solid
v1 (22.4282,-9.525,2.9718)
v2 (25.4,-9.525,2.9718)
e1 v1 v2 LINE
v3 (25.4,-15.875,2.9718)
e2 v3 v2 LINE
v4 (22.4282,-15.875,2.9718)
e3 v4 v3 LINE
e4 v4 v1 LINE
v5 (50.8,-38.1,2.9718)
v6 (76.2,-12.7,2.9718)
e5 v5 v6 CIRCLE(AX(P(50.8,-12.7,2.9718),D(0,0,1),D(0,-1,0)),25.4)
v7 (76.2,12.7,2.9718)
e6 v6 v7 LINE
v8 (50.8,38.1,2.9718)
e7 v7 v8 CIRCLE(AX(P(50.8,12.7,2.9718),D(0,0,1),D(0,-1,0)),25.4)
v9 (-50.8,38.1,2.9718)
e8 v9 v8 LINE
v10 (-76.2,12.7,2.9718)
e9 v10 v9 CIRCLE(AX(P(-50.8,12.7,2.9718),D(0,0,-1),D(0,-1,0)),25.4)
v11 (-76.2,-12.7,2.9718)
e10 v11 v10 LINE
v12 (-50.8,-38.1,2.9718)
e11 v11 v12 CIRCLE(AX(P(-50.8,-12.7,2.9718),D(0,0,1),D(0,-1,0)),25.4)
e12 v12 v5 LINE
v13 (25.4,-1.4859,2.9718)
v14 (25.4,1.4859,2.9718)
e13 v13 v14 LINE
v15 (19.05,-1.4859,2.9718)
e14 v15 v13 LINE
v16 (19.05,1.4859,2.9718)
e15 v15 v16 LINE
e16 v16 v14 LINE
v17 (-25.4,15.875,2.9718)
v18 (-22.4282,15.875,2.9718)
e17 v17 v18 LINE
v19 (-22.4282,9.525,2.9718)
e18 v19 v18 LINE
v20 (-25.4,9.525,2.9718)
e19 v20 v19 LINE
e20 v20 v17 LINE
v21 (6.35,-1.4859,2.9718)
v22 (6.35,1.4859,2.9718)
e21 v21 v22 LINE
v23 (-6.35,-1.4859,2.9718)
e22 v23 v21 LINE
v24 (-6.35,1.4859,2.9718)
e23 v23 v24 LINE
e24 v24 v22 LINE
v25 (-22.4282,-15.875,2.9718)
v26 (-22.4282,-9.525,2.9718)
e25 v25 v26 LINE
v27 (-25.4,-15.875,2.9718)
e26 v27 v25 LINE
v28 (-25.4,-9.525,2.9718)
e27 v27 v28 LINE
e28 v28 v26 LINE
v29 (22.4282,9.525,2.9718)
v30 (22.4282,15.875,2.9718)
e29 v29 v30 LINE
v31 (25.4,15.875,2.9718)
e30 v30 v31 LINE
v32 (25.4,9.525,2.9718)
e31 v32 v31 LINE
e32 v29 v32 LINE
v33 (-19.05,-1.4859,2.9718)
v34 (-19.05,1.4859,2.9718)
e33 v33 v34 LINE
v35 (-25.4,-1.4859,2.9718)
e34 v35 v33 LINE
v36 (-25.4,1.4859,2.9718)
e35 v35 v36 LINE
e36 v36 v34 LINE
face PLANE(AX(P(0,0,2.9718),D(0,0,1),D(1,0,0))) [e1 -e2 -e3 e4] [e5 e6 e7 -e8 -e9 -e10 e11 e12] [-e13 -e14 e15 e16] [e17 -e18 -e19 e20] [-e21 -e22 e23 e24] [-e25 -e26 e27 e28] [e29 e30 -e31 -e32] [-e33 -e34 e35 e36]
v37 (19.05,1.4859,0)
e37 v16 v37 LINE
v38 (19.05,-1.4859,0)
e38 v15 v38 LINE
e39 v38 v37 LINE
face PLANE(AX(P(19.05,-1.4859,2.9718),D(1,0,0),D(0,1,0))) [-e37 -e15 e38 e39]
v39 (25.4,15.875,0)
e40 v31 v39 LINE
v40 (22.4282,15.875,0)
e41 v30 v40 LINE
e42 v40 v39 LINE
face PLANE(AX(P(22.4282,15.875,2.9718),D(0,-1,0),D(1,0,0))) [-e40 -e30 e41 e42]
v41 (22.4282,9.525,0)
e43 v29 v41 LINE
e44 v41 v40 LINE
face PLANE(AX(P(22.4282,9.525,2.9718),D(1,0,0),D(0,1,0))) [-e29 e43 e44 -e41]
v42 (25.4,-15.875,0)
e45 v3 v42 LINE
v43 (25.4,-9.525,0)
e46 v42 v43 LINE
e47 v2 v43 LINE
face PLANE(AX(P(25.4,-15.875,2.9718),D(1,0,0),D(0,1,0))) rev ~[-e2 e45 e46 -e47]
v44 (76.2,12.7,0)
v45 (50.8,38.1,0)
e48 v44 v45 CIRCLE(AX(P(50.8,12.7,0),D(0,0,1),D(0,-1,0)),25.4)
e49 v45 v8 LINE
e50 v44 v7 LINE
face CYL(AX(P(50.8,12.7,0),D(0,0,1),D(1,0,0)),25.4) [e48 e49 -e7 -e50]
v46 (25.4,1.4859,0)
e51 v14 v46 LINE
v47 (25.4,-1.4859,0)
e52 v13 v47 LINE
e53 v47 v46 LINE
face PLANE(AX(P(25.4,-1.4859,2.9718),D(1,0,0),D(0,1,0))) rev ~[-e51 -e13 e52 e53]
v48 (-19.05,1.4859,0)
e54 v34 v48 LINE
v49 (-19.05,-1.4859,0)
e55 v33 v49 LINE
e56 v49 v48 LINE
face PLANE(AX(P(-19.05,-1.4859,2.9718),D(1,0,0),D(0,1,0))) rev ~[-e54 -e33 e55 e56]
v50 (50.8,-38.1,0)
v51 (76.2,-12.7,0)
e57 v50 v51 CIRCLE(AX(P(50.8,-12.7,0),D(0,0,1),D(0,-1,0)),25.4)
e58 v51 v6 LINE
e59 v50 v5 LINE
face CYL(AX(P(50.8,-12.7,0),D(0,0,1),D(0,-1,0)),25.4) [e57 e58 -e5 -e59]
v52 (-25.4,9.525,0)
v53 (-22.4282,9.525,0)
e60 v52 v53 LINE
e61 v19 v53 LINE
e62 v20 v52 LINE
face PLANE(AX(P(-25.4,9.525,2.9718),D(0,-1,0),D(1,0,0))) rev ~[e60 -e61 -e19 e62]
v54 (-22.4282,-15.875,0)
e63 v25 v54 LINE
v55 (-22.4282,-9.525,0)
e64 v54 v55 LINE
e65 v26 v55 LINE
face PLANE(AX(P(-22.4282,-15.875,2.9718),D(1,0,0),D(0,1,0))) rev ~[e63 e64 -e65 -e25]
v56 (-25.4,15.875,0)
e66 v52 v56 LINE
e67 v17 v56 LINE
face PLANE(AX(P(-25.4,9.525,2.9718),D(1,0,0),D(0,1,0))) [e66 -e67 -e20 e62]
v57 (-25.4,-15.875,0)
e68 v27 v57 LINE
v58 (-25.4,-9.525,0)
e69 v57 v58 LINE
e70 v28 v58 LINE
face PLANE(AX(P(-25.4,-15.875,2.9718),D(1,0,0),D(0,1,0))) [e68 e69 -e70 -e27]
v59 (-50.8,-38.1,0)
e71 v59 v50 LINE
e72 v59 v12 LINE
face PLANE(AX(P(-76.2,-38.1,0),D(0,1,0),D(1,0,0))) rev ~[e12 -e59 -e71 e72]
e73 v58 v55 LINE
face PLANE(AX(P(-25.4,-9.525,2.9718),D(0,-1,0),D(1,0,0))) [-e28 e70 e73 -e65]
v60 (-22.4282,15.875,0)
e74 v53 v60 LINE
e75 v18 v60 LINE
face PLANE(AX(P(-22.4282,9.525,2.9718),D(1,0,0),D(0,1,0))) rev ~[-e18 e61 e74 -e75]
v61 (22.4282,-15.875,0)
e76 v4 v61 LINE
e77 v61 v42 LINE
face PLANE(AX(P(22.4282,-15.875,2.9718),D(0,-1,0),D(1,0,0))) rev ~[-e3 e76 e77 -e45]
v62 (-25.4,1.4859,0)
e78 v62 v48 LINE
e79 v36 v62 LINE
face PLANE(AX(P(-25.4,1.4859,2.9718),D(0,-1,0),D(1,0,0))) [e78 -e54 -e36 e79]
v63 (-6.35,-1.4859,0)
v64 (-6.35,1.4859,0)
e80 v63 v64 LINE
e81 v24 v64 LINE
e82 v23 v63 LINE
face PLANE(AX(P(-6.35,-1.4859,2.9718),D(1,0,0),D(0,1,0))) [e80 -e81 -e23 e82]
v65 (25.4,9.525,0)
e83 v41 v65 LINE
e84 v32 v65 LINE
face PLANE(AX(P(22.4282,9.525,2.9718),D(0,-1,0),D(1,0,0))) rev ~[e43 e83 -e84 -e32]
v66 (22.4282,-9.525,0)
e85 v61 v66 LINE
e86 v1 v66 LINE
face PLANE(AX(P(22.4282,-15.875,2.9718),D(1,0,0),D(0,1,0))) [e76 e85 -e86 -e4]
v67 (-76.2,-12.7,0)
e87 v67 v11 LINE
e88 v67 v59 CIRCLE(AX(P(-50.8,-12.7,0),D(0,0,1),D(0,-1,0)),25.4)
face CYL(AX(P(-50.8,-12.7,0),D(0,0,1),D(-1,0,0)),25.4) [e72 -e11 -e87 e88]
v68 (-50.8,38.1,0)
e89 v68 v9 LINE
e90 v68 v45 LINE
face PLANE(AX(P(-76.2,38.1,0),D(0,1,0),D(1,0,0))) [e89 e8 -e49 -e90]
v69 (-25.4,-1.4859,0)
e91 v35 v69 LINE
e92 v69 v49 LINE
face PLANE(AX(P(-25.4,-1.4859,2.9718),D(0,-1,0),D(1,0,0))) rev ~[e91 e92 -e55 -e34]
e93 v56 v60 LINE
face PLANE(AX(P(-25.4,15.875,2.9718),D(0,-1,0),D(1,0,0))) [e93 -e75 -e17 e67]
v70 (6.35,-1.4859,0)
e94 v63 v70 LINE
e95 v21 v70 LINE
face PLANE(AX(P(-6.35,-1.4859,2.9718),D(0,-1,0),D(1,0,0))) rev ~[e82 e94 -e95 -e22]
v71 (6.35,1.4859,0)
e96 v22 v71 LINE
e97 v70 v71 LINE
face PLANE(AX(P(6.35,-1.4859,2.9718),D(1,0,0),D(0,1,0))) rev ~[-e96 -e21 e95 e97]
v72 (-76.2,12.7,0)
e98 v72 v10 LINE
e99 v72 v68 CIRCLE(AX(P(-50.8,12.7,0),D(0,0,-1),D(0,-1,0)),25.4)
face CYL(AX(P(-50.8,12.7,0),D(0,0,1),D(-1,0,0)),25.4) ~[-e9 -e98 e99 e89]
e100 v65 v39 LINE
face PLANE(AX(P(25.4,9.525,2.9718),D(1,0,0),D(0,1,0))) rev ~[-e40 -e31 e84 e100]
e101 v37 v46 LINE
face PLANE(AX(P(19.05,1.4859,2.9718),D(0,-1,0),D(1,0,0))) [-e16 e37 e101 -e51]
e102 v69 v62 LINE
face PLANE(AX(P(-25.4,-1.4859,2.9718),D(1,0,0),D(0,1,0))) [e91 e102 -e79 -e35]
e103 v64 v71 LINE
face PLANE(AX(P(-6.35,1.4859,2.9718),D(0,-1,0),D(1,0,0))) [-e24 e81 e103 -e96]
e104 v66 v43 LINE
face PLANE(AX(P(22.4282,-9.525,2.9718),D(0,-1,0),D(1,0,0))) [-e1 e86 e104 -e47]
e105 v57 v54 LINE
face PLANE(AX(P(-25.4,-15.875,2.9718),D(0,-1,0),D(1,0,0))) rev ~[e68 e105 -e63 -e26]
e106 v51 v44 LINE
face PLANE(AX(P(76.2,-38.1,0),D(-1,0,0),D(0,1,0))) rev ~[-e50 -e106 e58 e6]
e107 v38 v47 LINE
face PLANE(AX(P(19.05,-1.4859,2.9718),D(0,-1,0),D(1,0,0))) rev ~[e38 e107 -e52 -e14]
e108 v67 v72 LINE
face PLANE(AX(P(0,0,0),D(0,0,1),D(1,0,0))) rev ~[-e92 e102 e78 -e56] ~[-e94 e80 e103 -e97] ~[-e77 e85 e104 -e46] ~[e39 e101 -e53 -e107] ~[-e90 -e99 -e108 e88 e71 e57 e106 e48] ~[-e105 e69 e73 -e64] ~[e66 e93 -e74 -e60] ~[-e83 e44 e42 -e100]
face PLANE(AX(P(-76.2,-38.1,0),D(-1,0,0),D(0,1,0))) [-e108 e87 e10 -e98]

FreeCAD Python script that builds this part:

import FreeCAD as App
import Part
import Sketcher
from FreeCAD import Vector
Q = App.Units.Quantity


def edges_at(feature, points):
    """Names of the edges that pass closest to the given points."""
    edges = feature.Shape.Edges
    near = lambda p: min(range(len(edges)), key=lambda i: edges[i].distToShape(Part.Vertex(*p))[0])
    return sorted({f"Edge{near(p) + 1}" for p in points})


def add_polygon(sketch, points):
    """Adds a closed chain of lines whose ends are joined by coincident constraints."""
    first, n = sketch.GeometryCount, len(points)
    for a, b in zip(points, points[1:] + points[:1]):
        sketch.addGeometry(Part.LineSegment(App.Vector(*a, 0), App.Vector(*b, 0)), False)
    for i in range(n):
        sketch.addConstraint(Sketcher.Constraint("Coincident", first + i, 2, first + (i + 1) % n, 1))

doc = App.newDocument("Part")
params = doc.addObject("Spreadsheet::Sheet", "Params")
for row, (alias, value) in enumerate([
    ("sketch1_width", "6 in"),
    ("sketch1_height", "3 in"),
    ("pad1_length", "0.117 in"),
    ("fillet_radius", "1 in"),
    ("sketch2_width", "0.5 in"),
    ("sketch2_height", "0.117 in"),
    ("pocket1_length", "1 in"),
    ("sketch3_height", "0.25 in"),
    ("sketch3_width", "0.117 in"),
    ("pocket2_length", "1 in"),
], start=1):
    params.set(f"A{row}", alias)
    params.set(f"B{row}", "=" + value)
    params.setAlias(f"B{row}", alias)

body = doc.addObject("PartDesign::Body", "Body")

# Sketch on XY plane
sketch1 = body.newObject("Sketcher::SketchObject", "Sketch")
sketch1.AttachmentSupport = (doc.getObject("XY_Plane"), [""])
sketch1.MapMode = "FlatFace"
add_polygon(sketch1, [(-76, 38), (-76, -38), (76, -38), (76, 38)])  # lines 0-3
sketch1.addConstraint([
    Sketcher.Constraint("Vertical", 0),
    Sketcher.Constraint("Horizontal", 1),
    Sketcher.Constraint("Vertical", 2),
    Sketcher.Constraint("Horizontal", 3),
    Sketcher.Constraint("Symmetric", 0, 2, 2, 2, -1, 1),
    Sketcher.Constraint("DistanceX", 1, 1, 1, 2, Q("6 in")),
    Sketcher.Constraint("DistanceY", 0, 2, 0, 1, Q("3 in")),
])
sketch1.setExpression("Constraints[9]", "Params.sketch1_width")
sketch1.setExpression("Constraints[10]", "Params.sketch1_height")
pad1 = body.newObject("PartDesign::Pad", "Pad")
pad1.Profile = sketch1
pad1.setExpression("Length", "Params.pad1_length")
doc.recompute()

fillet = body.newObject("PartDesign::Fillet", "Fillet")
fillet.Base = (pad1, edges_at(pad1, [
    (-76.2, -38.1, 1.486),
    (76.2, -38.1, 1.486),
    (76.2, 38.1, 1.486),
    (-76.2, 38.1, 1.486),
]))
fillet.setExpression("Radius", "Params.fillet_radius")

# Sketch on XY plane
sketch2 = body.newObject("Sketcher::SketchObject", "Sketch001")
sketch2.AttachmentSupport = (doc.getObject("XY_Plane"), [""])
sketch2.MapMode = "FlatFace"
sketch2.AttachmentOffset = App.Placement(Vector(0, 0, 0.117 * 25.4), App.Rotation())
add_polygon(sketch2, [(-6.3, 1.5), (-6.3, -1.5), (6.3, -1.5), (6.3, 1.5)])  # lines 0-3
add_polygon(sketch2, [(19.1, 1.5), (19.1, -1.5), (25.4, -1.5), (25.4, 1.5)])  # lines 4-7
add_polygon(sketch2, [(-25.4, 1.5), (-25.4, -1.5), (-19.1, -1.5), (-19.1, 1.5)])  # lines 8-11
sketch2.addConstraint([
    Sketcher.Constraint("Vertical", 0),
    Sketcher.Constraint("Horizontal", 1),
    Sketcher.Constraint("Vertical", 2),
    Sketcher.Constraint("Horizontal", 3),
    Sketcher.Constraint("Vertical", 4),
    Sketcher.Constraint("Horizontal", 5),
    Sketcher.Constraint("Vertical", 6),
    Sketcher.Constraint("Horizontal", 7),
    Sketcher.Constraint("Vertical", 8),
    Sketcher.Constraint("Horizontal", 9),
    Sketcher.Constraint("Vertical", 10),
    Sketcher.Constraint("Horizontal", 11),
    Sketcher.Constraint("Symmetric", 0, 2, 2, 2, -1, 1),
    Sketcher.Constraint("Symmetric", 6, 2, 8, 2, -1, 1),
    Sketcher.Constraint("Symmetric", 4, 2, 10, 2, -1, 1),
    Sketcher.Constraint("Horizontal", 1, 2, 4, 2),
    Sketcher.Constraint("Horizontal", 3, 2, 6, 2),
    Sketcher.Constraint("DistanceX", 1, 1, 1, 2, Q("0.5 in")),
    Sketcher.Constraint("DistanceX", -1, 1, 5, 2, Q("1 in")),
    Sketcher.Constraint("DistanceX", 0, 2, 4, 2, Q("1 in")),
    Sketcher.Constraint("DistanceY", 0, 2, 0, 1, Q("0.117 in")),
])
sketch2.setExpression("Constraints[29]", "Params.sketch2_width")
sketch2.setExpression("Constraints[32]", "Params.sketch2_height")
pocket1 = body.newObject("PartDesign::Pocket", "Pocket")
pocket1.Profile = sketch2
pocket1.setExpression("Length", "Params.pocket1_length")

# Sketch on XY plane
sketch3 = body.newObject("Sketcher::SketchObject", "Sketch002")
sketch3.AttachmentSupport = (doc.getObject("XY_Plane"), [""])
sketch3.MapMode = "FlatFace"
sketch3.AttachmentOffset = App.Placement(Vector(0, 0, 0.117 * 25.4), App.Rotation())
add_polygon(sketch3, [(22.4, 15.9), (22.4, 9.5), (25.4, 9.5), (25.4, 15.9)])  # lines 0-3
add_polygon(sketch3, [(22.4, -9.5), (22.4, -15.9), (25.4, -15.9), (25.4, -9.5)])  # lines 4-7
add_polygon(sketch3, [(-25.4, 15.9), (-25.4, 9.5), (-22.4, 9.5), (-22.4, 15.9)])  # lines 8-11
add_polygon(sketch3, [(-25.4, -9.5), (-25.4, -15.9), (-22.4, -15.9), (-22.4, -9.5)])  # lines 12-15
sketch3.addConstraint([
    Sketcher.Constraint("Vertical", 0),
    Sketcher.Constraint("Horizontal", 1),
    Sketcher.Constraint("Vertical", 2),
    Sketcher.Constraint("Horizontal", 3),
    Sketcher.Constraint("Vertical", 4),
    Sketcher.Constraint("Horizontal", 5),
    Sketcher.Constraint("Vertical", 6),
    Sketcher.Constraint("Horizontal", 7),
    Sketcher.Constraint("Vertical", 8),
    Sketcher.Constraint("Horizontal", 9),
    Sketcher.Constraint("Vertical", 10),
    Sketcher.Constraint("Horizontal", 11),
    Sketcher.Constraint("Vertical", 12),
    Sketcher.Constraint("Horizontal", 13),
    Sketcher.Constraint("Vertical", 14),
    Sketcher.Constraint("Horizontal", 15),
    Sketcher.Constraint("Symmetric", 6, 2, 8, 2, -1, 1),
    Sketcher.Constraint("Symmetric", 4, 2, 10, 2, -1, 1),
    Sketcher.Constraint("Symmetric", 2, 2, 12, 2, -1, 1),
    Sketcher.Constraint("Symmetric", 0, 2, 14, 2, -1, 1),
    Sketcher.Constraint("Symmetric", 1, 2, 8, 2, -2),
    Sketcher.Constraint("Symmetric", 3, 2, 10, 2, -2),
    Sketcher.Constraint("DistanceX", -1, 1, 1, 2, Q("1 in")),
    Sketcher.Constraint("DistanceY", 4, 2, 0, 2, Q("1 in")),
    Sketcher.Constraint("DistanceY", 0, 2, 0, 1, Q("0.25 in")),
    Sketcher.Constraint("DistanceX", 1, 1, 1, 2, Q("0.117 in")),
])
sketch3.setExpression("Constraints[40]", "Params.sketch3_height")
sketch3.setExpression("Constraints[41]", "Params.sketch3_width")
pocket2 = body.newObject("PartDesign::Pocket", "Pocket001")
pocket2.Profile = sketch3
pocket2.setExpression("Length", "Params.pocket2_length")

doc.recompute()
